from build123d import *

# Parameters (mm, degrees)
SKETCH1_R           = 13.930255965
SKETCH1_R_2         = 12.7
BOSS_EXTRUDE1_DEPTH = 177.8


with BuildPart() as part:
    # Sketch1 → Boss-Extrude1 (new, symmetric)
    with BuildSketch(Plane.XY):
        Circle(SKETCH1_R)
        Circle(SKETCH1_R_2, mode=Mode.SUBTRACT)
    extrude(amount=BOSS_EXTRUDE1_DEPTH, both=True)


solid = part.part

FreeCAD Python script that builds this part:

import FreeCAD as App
import Part
import Sketcher
Q = App.Units.Quantity

doc = App.newDocument("Part")
params = doc.addObject("Spreadsheet::Sheet", "Params")
for row, (alias, value) in enumerate([
    ("sketch1_diameter", "1 in"),
    ("pad1_length", "14 in"),
], start=1):
    params.set(f"A{row}", alias)
    params.set(f"B{row}", "=" + value)
    params.setAlias(f"B{row}", alias)

body = doc.addObject("PartDesign::Body", "Body")

sketch1 = body.newObject("Sketcher::SketchObject", "Sketch")
sketch1.AttachmentSupport = (doc.getObject("XY_Plane"), [""])
sketch1.MapMode = "FlatFace"
sketch1.addGeometry([
    Part.Circle(App.Vector(0, 0, 0), App.Vector(0, 0, 1), 13.930256),
    Part.Circle(App.Vector(0, 0, 0), App.Vector(0, 0, 1), 12.7),
], False)
sketch1.addConstraint([
    Sketcher.Constraint("Coincident", 0, 3, -1, 1),
    Sketcher.Constraint("Coincident", 1, 3, -1, 1),
    Sketcher.Constraint("Diameter", 1, Q("1 in")),
    Sketcher.Constraint("Diameter", 0, 27.860512),
])
sketch1.setExpression("Constraints[2]", "Params.sketch1_diameter")
pad1 = body.newObject("PartDesign::Pad", "Pad")
pad1.Profile = sketch1
pad1.setExpression("Length", "Params.pad1_length")
pad1.Midplane = True

doc.recompute()
